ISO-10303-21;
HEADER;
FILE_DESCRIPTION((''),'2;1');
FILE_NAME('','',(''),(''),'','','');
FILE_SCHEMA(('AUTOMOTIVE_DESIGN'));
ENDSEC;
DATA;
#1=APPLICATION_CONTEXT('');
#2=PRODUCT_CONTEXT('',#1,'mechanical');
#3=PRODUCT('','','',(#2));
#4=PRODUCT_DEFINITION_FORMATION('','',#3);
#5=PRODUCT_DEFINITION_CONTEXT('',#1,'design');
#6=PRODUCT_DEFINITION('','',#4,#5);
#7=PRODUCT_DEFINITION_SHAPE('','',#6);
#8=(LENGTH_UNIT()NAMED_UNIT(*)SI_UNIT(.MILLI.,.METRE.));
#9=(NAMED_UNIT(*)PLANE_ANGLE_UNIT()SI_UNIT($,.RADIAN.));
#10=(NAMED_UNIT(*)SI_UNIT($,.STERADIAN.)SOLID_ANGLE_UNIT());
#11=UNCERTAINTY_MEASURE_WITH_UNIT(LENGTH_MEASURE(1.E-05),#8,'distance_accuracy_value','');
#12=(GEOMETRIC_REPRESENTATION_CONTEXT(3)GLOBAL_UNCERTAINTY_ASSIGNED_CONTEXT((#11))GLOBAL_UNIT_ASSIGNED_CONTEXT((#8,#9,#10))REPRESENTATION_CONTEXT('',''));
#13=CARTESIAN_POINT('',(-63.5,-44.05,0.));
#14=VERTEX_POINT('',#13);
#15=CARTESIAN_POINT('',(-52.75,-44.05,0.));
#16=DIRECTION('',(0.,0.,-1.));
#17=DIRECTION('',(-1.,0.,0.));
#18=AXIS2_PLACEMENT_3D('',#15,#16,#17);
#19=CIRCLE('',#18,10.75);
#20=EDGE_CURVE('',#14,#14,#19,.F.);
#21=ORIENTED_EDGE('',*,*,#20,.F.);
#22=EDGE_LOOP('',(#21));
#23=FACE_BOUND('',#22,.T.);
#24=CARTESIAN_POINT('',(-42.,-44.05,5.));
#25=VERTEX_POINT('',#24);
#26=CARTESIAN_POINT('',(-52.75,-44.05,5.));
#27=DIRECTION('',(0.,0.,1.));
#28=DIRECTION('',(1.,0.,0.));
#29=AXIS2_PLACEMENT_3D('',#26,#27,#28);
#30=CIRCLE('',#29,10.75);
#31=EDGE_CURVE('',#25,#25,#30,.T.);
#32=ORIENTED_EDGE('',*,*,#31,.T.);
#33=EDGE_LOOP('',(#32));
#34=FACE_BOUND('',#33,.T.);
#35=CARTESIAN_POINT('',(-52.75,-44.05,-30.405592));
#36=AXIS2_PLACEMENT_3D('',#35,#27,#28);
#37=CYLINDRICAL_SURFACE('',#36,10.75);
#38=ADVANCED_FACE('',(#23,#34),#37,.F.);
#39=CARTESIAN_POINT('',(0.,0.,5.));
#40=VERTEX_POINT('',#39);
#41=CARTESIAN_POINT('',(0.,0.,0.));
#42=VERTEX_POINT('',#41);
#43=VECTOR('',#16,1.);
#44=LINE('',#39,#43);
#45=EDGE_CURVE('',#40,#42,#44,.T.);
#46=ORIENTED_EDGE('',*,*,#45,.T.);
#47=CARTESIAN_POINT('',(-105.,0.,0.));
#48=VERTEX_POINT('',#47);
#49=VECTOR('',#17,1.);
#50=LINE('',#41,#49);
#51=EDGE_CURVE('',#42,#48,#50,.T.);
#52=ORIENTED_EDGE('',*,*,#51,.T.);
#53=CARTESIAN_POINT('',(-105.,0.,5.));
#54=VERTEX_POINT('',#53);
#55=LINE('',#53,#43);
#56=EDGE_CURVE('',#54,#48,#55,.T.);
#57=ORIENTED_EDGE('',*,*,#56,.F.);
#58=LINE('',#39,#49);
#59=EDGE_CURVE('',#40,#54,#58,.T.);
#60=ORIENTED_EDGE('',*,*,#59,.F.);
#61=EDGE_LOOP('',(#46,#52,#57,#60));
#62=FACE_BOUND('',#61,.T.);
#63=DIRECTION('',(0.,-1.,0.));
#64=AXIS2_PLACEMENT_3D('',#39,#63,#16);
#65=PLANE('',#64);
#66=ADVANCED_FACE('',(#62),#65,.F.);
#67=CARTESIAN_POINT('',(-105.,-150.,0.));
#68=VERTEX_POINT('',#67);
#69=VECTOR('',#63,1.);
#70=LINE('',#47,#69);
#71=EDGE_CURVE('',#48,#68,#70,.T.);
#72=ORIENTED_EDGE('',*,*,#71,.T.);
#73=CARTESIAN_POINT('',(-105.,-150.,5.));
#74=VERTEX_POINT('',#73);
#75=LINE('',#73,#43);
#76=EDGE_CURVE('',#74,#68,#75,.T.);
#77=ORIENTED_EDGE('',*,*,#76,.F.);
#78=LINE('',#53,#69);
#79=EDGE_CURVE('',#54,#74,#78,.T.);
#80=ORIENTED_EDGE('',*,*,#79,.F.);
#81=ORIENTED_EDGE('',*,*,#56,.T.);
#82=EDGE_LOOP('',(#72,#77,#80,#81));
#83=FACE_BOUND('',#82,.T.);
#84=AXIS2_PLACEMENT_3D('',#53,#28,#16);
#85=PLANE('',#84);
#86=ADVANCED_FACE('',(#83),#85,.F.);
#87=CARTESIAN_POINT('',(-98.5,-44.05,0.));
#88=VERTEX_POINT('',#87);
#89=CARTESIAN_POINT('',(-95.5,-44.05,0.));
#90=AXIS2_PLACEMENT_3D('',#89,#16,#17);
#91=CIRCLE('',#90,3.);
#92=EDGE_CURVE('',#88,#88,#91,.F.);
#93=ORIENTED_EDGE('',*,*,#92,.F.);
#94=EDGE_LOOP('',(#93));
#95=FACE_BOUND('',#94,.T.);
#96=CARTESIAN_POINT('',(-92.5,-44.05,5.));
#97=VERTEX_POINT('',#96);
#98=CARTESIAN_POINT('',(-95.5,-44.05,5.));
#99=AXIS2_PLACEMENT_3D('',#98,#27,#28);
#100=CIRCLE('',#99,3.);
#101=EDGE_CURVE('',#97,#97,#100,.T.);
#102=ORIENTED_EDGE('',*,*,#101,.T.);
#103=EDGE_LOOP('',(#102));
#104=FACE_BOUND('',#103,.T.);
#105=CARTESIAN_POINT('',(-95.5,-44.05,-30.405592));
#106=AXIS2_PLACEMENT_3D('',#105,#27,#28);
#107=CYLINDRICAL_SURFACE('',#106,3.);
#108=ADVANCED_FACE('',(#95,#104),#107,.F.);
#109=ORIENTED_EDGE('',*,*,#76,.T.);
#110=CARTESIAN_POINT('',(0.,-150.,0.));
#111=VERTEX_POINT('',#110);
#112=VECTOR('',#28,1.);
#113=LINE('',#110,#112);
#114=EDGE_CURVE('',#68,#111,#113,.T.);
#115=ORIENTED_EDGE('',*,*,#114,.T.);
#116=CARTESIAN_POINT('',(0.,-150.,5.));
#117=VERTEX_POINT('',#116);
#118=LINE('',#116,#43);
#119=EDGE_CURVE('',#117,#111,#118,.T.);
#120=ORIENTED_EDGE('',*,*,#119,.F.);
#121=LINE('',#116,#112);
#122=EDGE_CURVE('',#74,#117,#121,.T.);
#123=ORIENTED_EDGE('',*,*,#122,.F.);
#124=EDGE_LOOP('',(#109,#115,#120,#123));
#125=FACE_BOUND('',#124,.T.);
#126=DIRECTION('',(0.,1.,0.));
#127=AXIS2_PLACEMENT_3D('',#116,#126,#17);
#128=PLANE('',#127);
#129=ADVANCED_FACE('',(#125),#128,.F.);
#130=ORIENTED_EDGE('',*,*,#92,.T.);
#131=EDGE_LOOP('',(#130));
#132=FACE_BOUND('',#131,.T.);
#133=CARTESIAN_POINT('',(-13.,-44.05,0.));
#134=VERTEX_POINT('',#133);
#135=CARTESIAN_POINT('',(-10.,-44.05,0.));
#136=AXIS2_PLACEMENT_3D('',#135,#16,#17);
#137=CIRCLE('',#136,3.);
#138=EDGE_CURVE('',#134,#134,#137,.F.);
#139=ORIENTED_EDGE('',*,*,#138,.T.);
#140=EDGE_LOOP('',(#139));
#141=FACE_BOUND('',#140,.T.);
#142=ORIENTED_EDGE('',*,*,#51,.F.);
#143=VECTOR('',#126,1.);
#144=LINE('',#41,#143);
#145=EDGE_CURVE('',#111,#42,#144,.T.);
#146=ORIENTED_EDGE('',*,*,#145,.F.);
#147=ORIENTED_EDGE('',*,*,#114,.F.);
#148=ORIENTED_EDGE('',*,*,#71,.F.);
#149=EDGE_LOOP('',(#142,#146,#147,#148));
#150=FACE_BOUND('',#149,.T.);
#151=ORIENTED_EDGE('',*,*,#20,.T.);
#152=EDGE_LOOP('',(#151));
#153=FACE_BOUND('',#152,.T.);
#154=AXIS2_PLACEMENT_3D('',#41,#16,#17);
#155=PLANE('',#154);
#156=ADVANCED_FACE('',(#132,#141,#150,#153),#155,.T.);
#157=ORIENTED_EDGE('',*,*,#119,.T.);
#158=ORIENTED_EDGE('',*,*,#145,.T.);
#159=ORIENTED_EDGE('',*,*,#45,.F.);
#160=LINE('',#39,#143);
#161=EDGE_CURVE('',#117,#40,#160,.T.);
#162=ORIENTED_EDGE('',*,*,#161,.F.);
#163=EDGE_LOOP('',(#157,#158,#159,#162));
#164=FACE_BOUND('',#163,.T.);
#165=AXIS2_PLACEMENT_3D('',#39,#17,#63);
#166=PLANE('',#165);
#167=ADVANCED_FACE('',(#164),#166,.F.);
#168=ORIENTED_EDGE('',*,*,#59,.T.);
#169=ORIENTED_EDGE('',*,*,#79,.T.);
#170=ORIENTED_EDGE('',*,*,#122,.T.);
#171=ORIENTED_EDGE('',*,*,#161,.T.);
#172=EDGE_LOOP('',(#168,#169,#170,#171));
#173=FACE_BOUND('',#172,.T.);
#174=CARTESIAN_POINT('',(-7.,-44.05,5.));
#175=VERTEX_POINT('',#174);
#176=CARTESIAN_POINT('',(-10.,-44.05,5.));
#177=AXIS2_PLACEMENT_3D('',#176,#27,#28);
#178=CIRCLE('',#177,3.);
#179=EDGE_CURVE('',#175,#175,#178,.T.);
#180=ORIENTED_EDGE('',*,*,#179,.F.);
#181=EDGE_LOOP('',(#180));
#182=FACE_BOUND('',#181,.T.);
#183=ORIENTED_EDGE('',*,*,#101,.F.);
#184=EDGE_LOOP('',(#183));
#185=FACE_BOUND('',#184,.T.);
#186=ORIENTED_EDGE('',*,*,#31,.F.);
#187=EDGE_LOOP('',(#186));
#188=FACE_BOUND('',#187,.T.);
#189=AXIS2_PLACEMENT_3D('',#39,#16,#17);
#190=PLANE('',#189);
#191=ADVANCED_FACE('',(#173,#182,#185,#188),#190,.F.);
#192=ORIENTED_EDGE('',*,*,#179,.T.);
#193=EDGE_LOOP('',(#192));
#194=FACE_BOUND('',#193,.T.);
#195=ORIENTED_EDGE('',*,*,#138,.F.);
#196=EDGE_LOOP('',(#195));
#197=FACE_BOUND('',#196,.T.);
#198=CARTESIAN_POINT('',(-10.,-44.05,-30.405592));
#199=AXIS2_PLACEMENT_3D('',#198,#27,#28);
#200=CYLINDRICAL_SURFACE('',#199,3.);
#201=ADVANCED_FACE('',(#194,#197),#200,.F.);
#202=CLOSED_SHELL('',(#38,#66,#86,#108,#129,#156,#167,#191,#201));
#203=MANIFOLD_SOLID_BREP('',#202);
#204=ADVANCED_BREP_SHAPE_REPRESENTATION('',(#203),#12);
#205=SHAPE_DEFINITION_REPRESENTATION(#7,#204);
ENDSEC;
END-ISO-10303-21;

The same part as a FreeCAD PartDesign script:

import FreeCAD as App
import Part
import Sketcher

V = App.Vector
Q = App.Units.Quantity

doc = App.newDocument("Part")
params = doc.addObject("Spreadsheet::Sheet", "Params")
for row, (alias, value) in enumerate([
    ("sketch1_width", "105 mm"),
    ("sketch1_height", "150 mm"),
    ("pad1_length", "5 mm"),
    ("sketch2_diameter", "6 mm"),
    ("sketch2_diameter2", "21.5 mm"),
    ("pocket1_length", "5 mm"),
], start=1):
    params.set(f"A{row}", alias)
    params.set(f"B{row}", "=" + value)
    params.setAlias(f"B{row}", alias)

body = doc.addObject("PartDesign::Body", "Body")

# Sketch on XY plane
sketch1 = body.newObject("Sketcher::SketchObject", "Sketch")
sketch1.AttachmentSupport = (doc.getObject("XY_Plane"), [""])
sketch1.MapMode = "FlatFace"
sketch1.addGeometry(Part.LineSegment(V(-105, 0, 0), V(-105, -150, 0)), False)
sketch1.addGeometry(Part.LineSegment(V(-105, -150, 0), V(0, -150, 0)), False)
sketch1.addGeometry(Part.LineSegment(V(0, -150, 0), V(0, 0, 0)), False)
sketch1.addGeometry(Part.LineSegment(V(0, 0, 0), V(-105, 0, 0)), False)
sketch1.addConstraint(Sketcher.Constraint("Coincident", 0, 2, 1, 1))
sketch1.addConstraint(Sketcher.Constraint("Coincident", 1, 2, 2, 1))
sketch1.addConstraint(Sketcher.Constraint("Coincident", 2, 2, 3, 1))
sketch1.addConstraint(Sketcher.Constraint("Coincident", 3, 2, 0, 1))
sketch1.addConstraint(Sketcher.Constraint("Vertical", 0))
sketch1.addConstraint(Sketcher.Constraint("Horizontal", 1))
sketch1.addConstraint(Sketcher.Constraint("Vertical", 2))
sketch1.addConstraint(Sketcher.Constraint("Horizontal", 3))
sketch1.addConstraint(Sketcher.Constraint("Coincident", 2, 2, -1, 1))
sketch1.addConstraint(Sketcher.Constraint("DistanceX", 1, 1, 1, 2, Q("105 mm")))
sketch1.addConstraint(Sketcher.Constraint("DistanceY", 0, 2, 0, 1, Q("150 mm")))
sketch1.setExpression("Constraints[9]", "Params.sketch1_width")
sketch1.setExpression("Constraints[10]", "Params.sketch1_height")
pad1 = body.newObject("PartDesign::Pad", "Pad")
pad1.Profile = sketch1
pad1.setExpression("Length", "Params.pad1_length")

# Sketch on XY plane
sketch2 = body.newObject("Sketcher::SketchObject", "Sketch001")
sketch2.AttachmentSupport = (doc.getObject("XY_Plane"), [""])
sketch2.MapMode = "FlatFace"
sketch2.AttachmentOffset = App.Placement(V(0, 0, 5), App.Rotation())
sketch2.addGeometry(Part.Circle(V(-52.75, -44.05, 0), V(0, 0, 1), 10.75), False)
sketch2.addGeometry(Part.Circle(V(-10, -44.05, 0), V(0, 0, 1), 3), False)
sketch2.addGeometry(Part.Circle(V(-95.5, -44.05, 0), V(0, 0, 1), 3), False)
sketch2.addConstraint(Sketcher.Constraint("Equal", 1, 2))
sketch2.addConstraint(Sketcher.Constraint("Horizontal", 0, 3, 1, 3))
sketch2.addConstraint(Sketcher.Constraint("Horizontal", 1, 3, 2, 3))
sketch2.addConstraint(Sketcher.Constraint("Diameter", 1, Q("6 mm")))
sketch2.addConstraint(Sketcher.Constraint("Diameter", 0, Q("21.5 mm")))
sketch2.addConstraint(Sketcher.Constraint("DistanceX", 1, 3, -1, 1, Q("10 mm")))
sketch2.addConstraint(Sketcher.Constraint("DistanceX", 2, 3, -1, 1, Q("95.5 mm")))
sketch2.addConstraint(Sketcher.Constraint("DistanceX", 0, 3, -1, 1, Q("52.75 mm")))
sketch2.addConstraint(Sketcher.Constraint("DistanceY", 0, 3, -1, 1, Q("44.05 mm")))
sketch2.setExpression("Constraints[3]", "Params.sketch2_diameter")
sketch2.setExpression("Constraints[4]", "Params.sketch2_diameter2")
pocket1 = body.newObject("PartDesign::Pocket", "Pocket")
pocket1.Profile = sketch2
pocket1.setExpression("Length", "Params.pocket1_length")

doc.recompute()
